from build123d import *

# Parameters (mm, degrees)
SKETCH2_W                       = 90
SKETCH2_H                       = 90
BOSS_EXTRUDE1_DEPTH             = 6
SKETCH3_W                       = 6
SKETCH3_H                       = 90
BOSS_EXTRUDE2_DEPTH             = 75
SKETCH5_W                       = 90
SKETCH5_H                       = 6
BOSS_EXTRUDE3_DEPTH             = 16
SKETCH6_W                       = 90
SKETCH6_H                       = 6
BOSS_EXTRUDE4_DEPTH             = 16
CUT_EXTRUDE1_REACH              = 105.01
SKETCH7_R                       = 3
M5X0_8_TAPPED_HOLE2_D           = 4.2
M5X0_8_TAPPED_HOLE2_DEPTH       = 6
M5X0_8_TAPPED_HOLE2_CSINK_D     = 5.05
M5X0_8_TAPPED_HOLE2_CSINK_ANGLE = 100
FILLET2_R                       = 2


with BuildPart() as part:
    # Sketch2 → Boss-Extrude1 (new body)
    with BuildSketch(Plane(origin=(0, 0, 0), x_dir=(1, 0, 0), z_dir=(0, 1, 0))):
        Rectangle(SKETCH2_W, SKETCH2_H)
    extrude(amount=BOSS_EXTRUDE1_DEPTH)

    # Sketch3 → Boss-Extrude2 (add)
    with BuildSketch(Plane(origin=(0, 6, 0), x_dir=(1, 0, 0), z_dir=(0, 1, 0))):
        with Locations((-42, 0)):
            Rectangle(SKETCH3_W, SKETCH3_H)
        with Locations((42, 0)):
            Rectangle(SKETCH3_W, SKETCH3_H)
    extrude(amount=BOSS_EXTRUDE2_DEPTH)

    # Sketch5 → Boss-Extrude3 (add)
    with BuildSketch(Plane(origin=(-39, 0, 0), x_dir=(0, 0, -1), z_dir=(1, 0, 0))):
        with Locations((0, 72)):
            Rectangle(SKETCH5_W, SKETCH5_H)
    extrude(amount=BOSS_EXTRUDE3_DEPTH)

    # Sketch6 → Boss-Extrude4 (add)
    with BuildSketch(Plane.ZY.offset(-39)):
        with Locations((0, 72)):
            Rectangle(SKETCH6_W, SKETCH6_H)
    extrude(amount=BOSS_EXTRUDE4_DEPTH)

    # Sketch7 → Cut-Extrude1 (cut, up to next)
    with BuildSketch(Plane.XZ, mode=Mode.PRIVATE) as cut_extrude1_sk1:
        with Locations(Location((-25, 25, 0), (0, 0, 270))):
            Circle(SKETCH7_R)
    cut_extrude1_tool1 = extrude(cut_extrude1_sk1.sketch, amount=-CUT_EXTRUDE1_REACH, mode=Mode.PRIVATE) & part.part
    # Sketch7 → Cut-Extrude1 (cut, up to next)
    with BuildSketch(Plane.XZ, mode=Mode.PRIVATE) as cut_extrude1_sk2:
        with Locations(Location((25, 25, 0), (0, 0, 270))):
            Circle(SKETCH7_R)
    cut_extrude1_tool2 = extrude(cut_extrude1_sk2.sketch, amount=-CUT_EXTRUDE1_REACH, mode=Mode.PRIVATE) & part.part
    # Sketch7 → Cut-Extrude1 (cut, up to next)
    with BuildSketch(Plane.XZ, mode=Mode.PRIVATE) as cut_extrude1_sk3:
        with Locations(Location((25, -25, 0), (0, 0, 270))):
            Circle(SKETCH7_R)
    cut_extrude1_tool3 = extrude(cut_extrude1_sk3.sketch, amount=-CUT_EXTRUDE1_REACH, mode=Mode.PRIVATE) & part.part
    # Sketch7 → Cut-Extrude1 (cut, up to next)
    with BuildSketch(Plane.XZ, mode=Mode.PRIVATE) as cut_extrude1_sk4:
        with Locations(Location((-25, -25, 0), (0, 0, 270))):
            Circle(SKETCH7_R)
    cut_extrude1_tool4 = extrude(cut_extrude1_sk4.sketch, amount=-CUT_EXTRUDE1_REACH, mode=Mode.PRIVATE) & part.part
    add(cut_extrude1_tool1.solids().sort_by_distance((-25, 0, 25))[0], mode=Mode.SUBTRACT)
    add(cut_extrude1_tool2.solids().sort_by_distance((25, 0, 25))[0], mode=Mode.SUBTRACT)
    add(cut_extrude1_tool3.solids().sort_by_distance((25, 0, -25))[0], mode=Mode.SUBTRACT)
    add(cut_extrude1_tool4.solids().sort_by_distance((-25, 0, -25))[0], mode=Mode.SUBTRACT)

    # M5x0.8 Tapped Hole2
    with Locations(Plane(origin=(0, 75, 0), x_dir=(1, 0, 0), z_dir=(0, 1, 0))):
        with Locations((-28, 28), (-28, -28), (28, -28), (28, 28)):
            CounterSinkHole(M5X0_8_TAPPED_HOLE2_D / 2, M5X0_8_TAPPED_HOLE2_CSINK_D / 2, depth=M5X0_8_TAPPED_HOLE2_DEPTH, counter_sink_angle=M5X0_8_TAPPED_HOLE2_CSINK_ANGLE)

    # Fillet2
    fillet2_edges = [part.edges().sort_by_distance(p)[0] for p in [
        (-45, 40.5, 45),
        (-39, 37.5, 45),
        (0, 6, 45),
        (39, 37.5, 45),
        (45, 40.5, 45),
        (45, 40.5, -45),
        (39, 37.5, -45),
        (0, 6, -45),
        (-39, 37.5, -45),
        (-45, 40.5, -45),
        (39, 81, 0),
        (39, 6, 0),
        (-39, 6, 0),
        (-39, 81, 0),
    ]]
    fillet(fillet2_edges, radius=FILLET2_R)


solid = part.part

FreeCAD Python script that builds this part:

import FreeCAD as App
import Part
import Sketcher


def edges_at(feature, points):
    """Names of the edges that pass closest to the given points."""
    edges = feature.Shape.Edges
    near = lambda p: min(range(len(edges)), key=lambda i: edges[i].distToShape(Part.Vertex(*p))[0])
    return sorted({f"Edge{near(p) + 1}" for p in points})

doc = App.newDocument("Part")
body = doc.addObject("PartDesign::Body", "Body")

sketch1 = doc.addObject("Sketcher::SketchObject", "Sketch")
body.addObject(sketch1)
sketch1.AttachmentSupport = (doc.XZ_Plane, [""])
sketch1.MapMode = "FlatFace"
sketch1.addGeometry(Part.LineSegment(App.Vector(-45, -45, 0), App.Vector(-45, 45, 0)), False)
sketch1.addGeometry(Part.LineSegment(App.Vector(-45, 45, 0), App.Vector(45, 45, 0)), False)
sketch1.addGeometry(Part.LineSegment(App.Vector(45, 45, 0), App.Vector(45, -45, 0)), False)
sketch1.addGeometry(Part.LineSegment(App.Vector(45, -45, 0), App.Vector(-45, -45, 0)), False)
sketch1.addConstraint(Sketcher.Constraint("Coincident", 0, 2, 1, 1))
sketch1.addConstraint(Sketcher.Constraint("Coincident", 1, 2, 2, 1))
sketch1.addConstraint(Sketcher.Constraint("Coincident", 2, 2, 3, 1))
sketch1.addConstraint(Sketcher.Constraint("Coincident", 3, 2, 0, 1))
sketch1.addConstraint(Sketcher.Constraint("Vertical", 0))
sketch1.addConstraint(Sketcher.Constraint("Horizontal", 1))
sketch1.addConstraint(Sketcher.Constraint("Vertical", 2))
sketch1.addConstraint(Sketcher.Constraint("Horizontal", 3))
sketch1.addConstraint(Sketcher.Constraint("Symmetric", 0, 2, 2, 2, -1, 1))
sketch1.addConstraint(Sketcher.Constraint("Equal", 3, 0))
sketch1.addConstraint(Sketcher.Constraint("DistanceX", 1, 1, 1, 2, 90.0))
pad1 = doc.addObject("PartDesign::Pad", "Pad")
body.addObject(pad1)
pad1.Profile = sketch1
pad1.Length = 6
pad1.Reversed = True

sketch2 = doc.addObject("Sketcher::SketchObject", "Sketch001")
body.addObject(sketch2)
sketch2.AttachmentSupport = (doc.XZ_Plane, [""])
sketch2.MapMode = "FlatFace"
sketch2.AttachmentOffset = App.Placement(App.Vector(0, 0, -6), App.Rotation())
sketch2.addGeometry(Part.LineSegment(App.Vector(-45, -45, 0), App.Vector(-45, 45, 0)), False)
sketch2.addGeometry(Part.LineSegment(App.Vector(-45, 45, 0), App.Vector(-39, 45, 0)), False)
sketch2.addGeometry(Part.LineSegment(App.Vector(-39, 45, 0), App.Vector(-39, -45, 0)), False)
sketch2.addGeometry(Part.LineSegment(App.Vector(-39, -45, 0), App.Vector(-45, -45, 0)), False)
sketch2.addGeometry(Part.LineSegment(App.Vector(39, -45, 0), App.Vector(39, 45, 0)), False)
sketch2.addGeometry(Part.LineSegment(App.Vector(39, 45, 0), App.Vector(45, 45, 0)), False)
sketch2.addGeometry(Part.LineSegment(App.Vector(45, 45, 0), App.Vector(45, -45, 0)), False)
sketch2.addGeometry(Part.LineSegment(App.Vector(45, -45, 0), App.Vector(39, -45, 0)), False)
sketch2.addConstraint(Sketcher.Constraint("Coincident", 0, 2, 1, 1))
sketch2.addConstraint(Sketcher.Constraint("Coincident", 1, 2, 2, 1))
sketch2.addConstraint(Sketcher.Constraint("Coincident", 2, 2, 3, 1))
sketch2.addConstraint(Sketcher.Constraint("Coincident", 3, 2, 0, 1))
sketch2.addConstraint(Sketcher.Constraint("Coincident", 4, 2, 5, 1))
sketch2.addConstraint(Sketcher.Constraint("Coincident", 5, 2, 6, 1))
sketch2.addConstraint(Sketcher.Constraint("Coincident", 6, 2, 7, 1))
sketch2.addConstraint(Sketcher.Constraint("Coincident", 7, 2, 4, 1))
sketch2.addConstraint(Sketcher.Constraint("Vertical", 0))
sketch2.addConstraint(Sketcher.Constraint("Horizontal", 1))
sketch2.addConstraint(Sketcher.Constraint("Vertical", 2))
sketch2.addConstraint(Sketcher.Constraint("Horizontal", 3))
sketch2.addConstraint(Sketcher.Constraint("Vertical", 4))
sketch2.addConstraint(Sketcher.Constraint("Horizontal", 5))
sketch2.addConstraint(Sketcher.Constraint("Vertical", 6))
sketch2.addConstraint(Sketcher.Constraint("Horizontal", 7))
sketch2.addConstraint(Sketcher.Constraint("Symmetric", 2, 2, 4, 2, -1, 1))
sketch2.addConstraint(Sketcher.Constraint("Symmetric", 0, 2, 6, 2, -1, 1))
sketch2.addConstraint(Sketcher.Constraint("Horizontal", 1, 2, 4, 2))
sketch2.addConstraint(Sketcher.Constraint("DistanceX", 1, 1, 1, 2, 6.0))
sketch2.addConstraint(Sketcher.Constraint("DistanceY", 0, 1, 0, 2, 90.0))
sketch2.addConstraint(Sketcher.Constraint("DistanceX", 0, 2, -1, 1, 45.0))
pad2 = doc.addObject("PartDesign::Pad", "Pad001")
body.addObject(pad2)
pad2.Profile = sketch2
pad2.Length = 75
pad2.Reversed = True

sketch3 = doc.addObject("Sketcher::SketchObject", "Sketch002")
body.addObject(sketch3)
sketch3.AttachmentSupport = (doc.YZ_Plane, [""])
sketch3.MapMode = "FlatFace"
sketch3.AttachmentOffset = App.Placement(App.Vector(0, 0, -39), App.Rotation())
sketch3.addGeometry(Part.LineSegment(App.Vector(75, 45, 0), App.Vector(69, 45, 0)), False)
sketch3.addGeometry(Part.LineSegment(App.Vector(69, 45, 0), App.Vector(69, -45, 0)), False)
sketch3.addGeometry(Part.LineSegment(App.Vector(69, -45, 0), App.Vector(75, -45, 0)), False)
sketch3.addGeometry(Part.LineSegment(App.Vector(75, -45, 0), App.Vector(75, 45, 0)), False)
sketch3.addConstraint(Sketcher.Constraint("Coincident", 0, 2, 1, 1))
sketch3.addConstraint(Sketcher.Constraint("Coincident", 1, 2, 2, 1))
sketch3.addConstraint(Sketcher.Constraint("Coincident", 2, 2, 3, 1))
sketch3.addConstraint(Sketcher.Constraint("Coincident", 3, 2, 0, 1))
sketch3.addConstraint(Sketcher.Constraint("Horizontal", 0))
sketch3.addConstraint(Sketcher.Constraint("Vertical", 1))
sketch3.addConstraint(Sketcher.Constraint("Horizontal", 2))
sketch3.addConstraint(Sketcher.Constraint("Vertical", 3))
sketch3.addConstraint(Sketcher.Constraint("DistanceX", 0, 2, 0, 1, 6.0))
sketch3.addConstraint(Sketcher.Constraint("DistanceY", 1, 2, 1, 1, 90.0))
sketch3.addConstraint(Sketcher.Constraint("DistanceX", -1, 1, 0, 2, 69.0))
sketch3.addConstraint(Sketcher.Constraint("DistanceY", -1, 1, 0, 2, 45.0))
pad3 = doc.addObject("PartDesign::Pad", "Pad002")
body.addObject(pad3)
pad3.Profile = sketch3
pad3.Length = 16

sketch4 = doc.addObject("Sketcher::SketchObject", "Sketch003")
body.addObject(sketch4)
sketch4.AttachmentSupport = (doc.YZ_Plane, [""])
sketch4.MapMode = "FlatFace"
sketch4.AttachmentOffset = App.Placement(App.Vector(0, 0, 39), App.Rotation())
sketch4.addGeometry(Part.LineSegment(App.Vector(75, -45, 0), App.Vector(69, -45, 0)), False)
sketch4.addGeometry(Part.LineSegment(App.Vector(69, -45, 0), App.Vector(69, 45, 0)), False)
sketch4.addGeometry(Part.LineSegment(App.Vector(69, 45, 0), App.Vector(75, 45, 0)), False)
sketch4.addGeometry(Part.LineSegment(App.Vector(75, 45, 0), App.Vector(75, -45, 0)), False)
sketch4.addConstraint(Sketcher.Constraint("Coincident", 0, 2, 1, 1))
sketch4.addConstraint(Sketcher.Constraint("Coincident", 1, 2, 2, 1))
sketch4.addConstraint(Sketcher.Constraint("Coincident", 2, 2, 3, 1))
sketch4.addConstraint(Sketcher.Constraint("Coincident", 3, 2, 0, 1))
sketch4.addConstraint(Sketcher.Constraint("Horizontal", 0))
sketch4.addConstraint(Sketcher.Constraint("Vertical", 1))
sketch4.addConstraint(Sketcher.Constraint("Horizontal", 2))
sketch4.addConstraint(Sketcher.Constraint("Vertical", 3))
sketch4.addConstraint(Sketcher.Constraint("DistanceX", 0, 2, 0, 1, 6.0))
sketch4.addConstraint(Sketcher.Constraint("DistanceY", 1, 1, 1, 2, 90.0))
sketch4.addConstraint(Sketcher.Constraint("DistanceX", -1, 1, 0, 2, 69.0))
sketch4.addConstraint(Sketcher.Constraint("DistanceY", 0, 2, -1, 1, 45.0))
pad4 = doc.addObject("PartDesign::Pad", "Pad003")
body.addObject(pad4)
pad4.Profile = sketch4
pad4.Length = 16
pad4.Reversed = True

sketch5 = doc.addObject("Sketcher::SketchObject", "Sketch004")
body.addObject(sketch5)
sketch5.AttachmentSupport = (doc.XZ_Plane, [""])
sketch5.MapMode = "FlatFace"
sketch5.addGeometry(Part.Circle(App.Vector(-25, 25, 0), App.Vector(0, 0, 1), 3), False)
sketch5.addConstraint(Sketcher.Constraint("Diameter", 0, 6.0))
sketch5.addConstraint(Sketcher.Constraint("DistanceX", 0, 3, -1, 1, 25.0))
sketch5.addConstraint(Sketcher.Constraint("DistanceY", -1, 1, 0, 3, 25.0))
pocket1 = doc.addObject("PartDesign::Pocket", "Pocket")
body.addObject(pocket1)
pocket1.Profile = sketch5
pocket1.Type = "UpToFirst"

sketch6 = doc.addObject("Sketcher::SketchObject", "Sketch005")
body.addObject(sketch6)
sketch6.AttachmentSupport = (doc.XZ_Plane, [""])
sketch6.MapMode = "FlatFace"
sketch6.addGeometry(Part.Circle(App.Vector(25, 25, 0), App.Vector(0, 0, 1), 3), False)
sketch6.addConstraint(Sketcher.Constraint("Diameter", 0, 6.0))
sketch6.addConstraint(Sketcher.Constraint("DistanceX", -1, 1, 0, 3, 25.0))
sketch6.addConstraint(Sketcher.Constraint("DistanceY", -1, 1, 0, 3, 25.0))
pocket2 = doc.addObject("PartDesign::Pocket", "Pocket001")
body.addObject(pocket2)
pocket2.Profile = sketch6
pocket2.Type = "UpToFirst"

sketch7 = doc.addObject("Sketcher::SketchObject", "Sketch006")
body.addObject(sketch7)
sketch7.AttachmentSupport = (doc.XZ_Plane, [""])
sketch7.MapMode = "FlatFace"
sketch7.addGeometry(Part.Circle(App.Vector(25, -25, 0), App.Vector(0, 0, 1), 3), False)
sketch7.addConstraint(Sketcher.Constraint("Diameter", 0, 6.0))
sketch7.addConstraint(Sketcher.Constraint("DistanceX", -1, 1, 0, 3, 25.0))
sketch7.addConstraint(Sketcher.Constraint("DistanceY", 0, 3, -1, 1, 25.0))
pocket3 = doc.addObject("PartDesign::Pocket", "Pocket002")
body.addObject(pocket3)
pocket3.Profile = sketch7
pocket3.Type = "UpToFirst"

sketch8 = doc.addObject("Sketcher::SketchObject", "Sketch007")
body.addObject(sketch8)
sketch8.AttachmentSupport = (doc.XZ_Plane, [""])
sketch8.MapMode = "FlatFace"
sketch8.addGeometry(Part.Circle(App.Vector(-25, -25, 0), App.Vector(0, 0, 1), 3), False)
sketch8.addConstraint(Sketcher.Constraint("Diameter", 0, 6.0))
sketch8.addConstraint(Sketcher.Constraint("DistanceX", 0, 3, -1, 1, 25.0))
sketch8.addConstraint(Sketcher.Constraint("DistanceY", 0, 3, -1, 1, 25.0))
pocket4 = doc.addObject("PartDesign::Pocket", "Pocket003")
body.addObject(pocket4)
pocket4.Profile = sketch8
pocket4.Type = "UpToFirst"

sketch9 = doc.addObject("Sketcher::SketchObject", "Sketch008")
body.addObject(sketch9)
sketch9.AttachmentSupport = (doc.XZ_Plane, [""])
sketch9.MapMode = "FlatFace"
sketch9.AttachmentOffset = App.Placement(App.Vector(0, 0, -75), App.Rotation())
sketch9.addGeometry(Part.Circle(App.Vector(-28, -28, 0), App.Vector(0, 0, 1), 2.1), False)
sketch9.addGeometry(Part.Circle(App.Vector(-28, 28, 0), App.Vector(0, 0, 1), 2.1), False)
sketch9.addGeometry(Part.Circle(App.Vector(28, 28, 0), App.Vector(0, 0, 1), 2.1), False)
sketch9.addGeometry(Part.Circle(App.Vector(28, -28, 0), App.Vector(0, 0, 1), 2.1), False)
sketch9.addConstraint(Sketcher.Constraint("Equal", 0, 1))
sketch9.addConstraint(Sketcher.Constraint("Equal", 1, 2))
sketch9.addConstraint(Sketcher.Constraint("Equal", 2, 3))
sketch9.addConstraint(Sketcher.Constraint("Symmetric", 0, 3, 2, 3, -1, 1))
sketch9.addConstraint(Sketcher.Constraint("Symmetric", 1, 3, 3, 3, -1, 1))
sketch9.addConstraint(Sketcher.Constraint("Symmetric", 1, 3, 2, 3, -2))
sketch9.addConstraint(Sketcher.Constraint("Diameter", 0, 4.2))
sketch9.addConstraint(Sketcher.Constraint("DistanceX", 0, 3, -1, 1, 28.0))
sketch9.addConstraint(Sketcher.Constraint("DistanceY", 0, 3, -1, 1, 28.0))
doc.recompute()
hole = doc.addObject("PartDesign::Hole", "Hole")
body.addObject(hole)
hole.Profile = sketch9
hole.ThreadType = "None"
hole.Diameter = 4.2
hole.DepthType = "Dimension"
hole.Depth = 6
hole.DrillPoint = "Flat"
hole.HoleCutType = "Countersink"
hole.HoleCutDiameter = 5.05
hole.HoleCutCountersinkAngle = 100
hole.Reversed = True
doc.recompute()

fillet = doc.addObject("PartDesign::Fillet", "Fillet")
body.addObject(fillet)
fillet.Base = (hole, edges_at(hole, [
    (-45, 40.5, 45),
    (-39, 37.5, 45),
    (0, 6, 45),
    (39, 37.5, 45),
    (45, 40.5, 45),
    (45, 40.5, -45),
    (39, 37.5, -45),
    (0, 6, -45),
    (-39, 37.5, -45),
    (-45, 40.5, -45),
    (39, 81, 0),
    (39, 6, 0),
    (-39, 6, 0),
    (-39, 81, 0),
]))
fillet.Radius = 2

doc.recompute()
